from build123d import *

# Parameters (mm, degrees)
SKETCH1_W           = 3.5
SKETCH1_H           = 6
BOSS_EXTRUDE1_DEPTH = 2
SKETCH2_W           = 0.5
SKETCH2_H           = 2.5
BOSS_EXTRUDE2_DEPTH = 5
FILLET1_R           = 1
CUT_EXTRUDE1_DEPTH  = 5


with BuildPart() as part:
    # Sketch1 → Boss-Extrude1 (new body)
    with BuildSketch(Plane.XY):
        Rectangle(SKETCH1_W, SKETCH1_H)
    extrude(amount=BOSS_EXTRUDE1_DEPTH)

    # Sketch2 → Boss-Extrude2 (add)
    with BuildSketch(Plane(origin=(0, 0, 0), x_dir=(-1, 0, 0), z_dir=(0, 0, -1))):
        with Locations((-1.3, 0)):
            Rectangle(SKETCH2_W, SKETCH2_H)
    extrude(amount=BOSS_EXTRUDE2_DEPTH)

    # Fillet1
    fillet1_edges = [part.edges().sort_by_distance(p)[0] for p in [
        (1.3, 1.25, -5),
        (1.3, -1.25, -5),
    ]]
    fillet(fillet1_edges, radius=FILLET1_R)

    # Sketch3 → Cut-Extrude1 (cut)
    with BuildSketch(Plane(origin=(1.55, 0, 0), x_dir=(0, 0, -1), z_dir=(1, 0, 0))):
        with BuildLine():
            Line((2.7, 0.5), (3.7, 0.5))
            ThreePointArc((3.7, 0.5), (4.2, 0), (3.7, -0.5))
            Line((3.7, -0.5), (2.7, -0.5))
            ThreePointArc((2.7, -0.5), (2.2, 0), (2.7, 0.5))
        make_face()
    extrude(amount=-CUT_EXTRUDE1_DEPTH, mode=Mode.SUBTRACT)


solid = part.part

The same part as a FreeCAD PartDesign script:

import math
import FreeCAD as App
import Part
import Sketcher
from FreeCAD import Vector
Q = App.Units.Quantity


def edges_at(feature, points):
    """Names of the edges that pass closest to the given points."""
    edges = feature.Shape.Edges
    near = lambda p: min(range(len(edges)), key=lambda i: edges[i].distToShape(Part.Vertex(*p))[0])
    return sorted({f"Edge{near(p) + 1}" for p in points})


def add_polygon(sketch, points):
    """Adds a closed chain of lines whose ends are joined by coincident constraints."""
    first, n = sketch.GeometryCount, len(points)
    for a, b in zip(points, points[1:] + points[:1]):
        sketch.addGeometry(Part.LineSegment(App.Vector(*a, 0), App.Vector(*b, 0)), False)
    for i in range(n):
        sketch.addConstraint(Sketcher.Constraint("Coincident", first + i, 2, first + (i + 1) % n, 1))

doc = App.newDocument("Part")
body = doc.addObject("PartDesign::Body", "Body")

sketch1 = body.newObject("Sketcher::SketchObject", "Sketch")
sketch1.AttachmentSupport = (doc.getObject("XY_Plane"), [""])
sketch1.MapMode = "FlatFace"
add_polygon(sketch1, [(-1.8, 3), (-1.8, -3), (1.8, -3), (1.8, 3)])
sketch1.addConstraint([
    Sketcher.Constraint("Vertical", 0),
    Sketcher.Constraint("Horizontal", 1),
    Sketcher.Constraint("Vertical", 2),
    Sketcher.Constraint("Horizontal", 3),
    Sketcher.Constraint("Symmetric", 0, 2, 2, 2, -1, 1),
    Sketcher.Constraint("DistanceY", 0, 2, 0, 1, Q("6 mm")),
    Sketcher.Constraint("DistanceX", 1, 1, 1, 2, Q("3.5 mm")),
])
pad1 = body.newObject("PartDesign::Pad", "Pad")
pad1.Profile = sketch1
pad1.Length = 2

sketch2 = body.newObject("Sketcher::SketchObject", "Sketch001")
sketch2.AttachmentSupport = (doc.getObject("XY_Plane"), [""])
sketch2.MapMode = "FlatFace"
add_polygon(sketch2, [(1.6, 1.2), (1.6, -1.2), (1.1, -1.2), (1.1, 1.2)])
sketch2.addConstraint([
    Sketcher.Constraint("Vertical", 0),
    Sketcher.Constraint("Horizontal", 1),
    Sketcher.Constraint("Vertical", 2),
    Sketcher.Constraint("Horizontal", 3),
    Sketcher.Constraint("DistanceX", 1, 2, 1, 1, Q("0.5 mm")),
    Sketcher.Constraint("DistanceY", 0, 2, 0, 1, Q("2.5 mm")),
    Sketcher.Constraint("DistanceX", -1, 1, 0, 2, Q("1.55 mm")),
    Sketcher.Constraint("DistanceY", 0, 2, -1, 1, Q("1.25 mm")),
])
pad2 = body.newObject("PartDesign::Pad", "Pad001")
pad2.Profile = sketch2
pad2.Length = 5
pad2.Reversed = True
doc.recompute()

fillet = body.newObject("PartDesign::Fillet", "Fillet")
fillet.Base = (pad2, edges_at(pad2, [(1.3, 1.25, -5), (1.3, -1.25, -5)]))
fillet.Radius = 1

sketch3 = body.newObject("Sketcher::SketchObject", "Sketch002")
sketch3.AttachmentSupport = (doc.getObject("YZ_Plane"), [""])
sketch3.MapMode = "FlatFace"
sketch3.AttachmentOffset = App.Placement(Vector(0, 0, 1.55), App.Rotation())
sketch3.addGeometry([
    Part.LineSegment(Vector(0.5, -3.7, 0), Vector(0.5, -2.7, 0)),
    Part.ArcOfCircle(Part.Circle(Vector(0, -2.7, 0), Vector(0, 0, 1), 0.5), math.radians(0), math.radians(180)),
    Part.LineSegment(Vector(-0.5, -2.7, 0), Vector(-0.5, -3.7, 0)),
    Part.ArcOfCircle(Part.Circle(Vector(0, -3.7, 0), Vector(0, 0, 1), 0.5), math.radians(180), math.radians(360)),
], False)
sketch3.addConstraint([
    Sketcher.Constraint("Tangent", 0, 2, 1, 1),
    Sketcher.Constraint("Tangent", 1, 2, 2, 1),
    Sketcher.Constraint("Tangent", 2, 2, 3, 1),
    Sketcher.Constraint("Tangent", 3, 2, 0, 1),
    Sketcher.Constraint("Vertical", 0),
    Sketcher.Constraint("Vertical", 2),
    Sketcher.Constraint("PointOnObject", 1, 3, -2),
    Sketcher.Constraint("Radius", 1, Q("0.5 mm")),
    Sketcher.Constraint("DistanceY", 0, 1, 0, 2, Q("1 mm")),
    Sketcher.Constraint("DistanceY", 1, 3, -1, 1, Q("2.7 mm")),
])
pocket1 = body.newObject("PartDesign::Pocket", "Pocket")
pocket1.Profile = sketch3
pocket1.Length = 5

doc.recompute()
